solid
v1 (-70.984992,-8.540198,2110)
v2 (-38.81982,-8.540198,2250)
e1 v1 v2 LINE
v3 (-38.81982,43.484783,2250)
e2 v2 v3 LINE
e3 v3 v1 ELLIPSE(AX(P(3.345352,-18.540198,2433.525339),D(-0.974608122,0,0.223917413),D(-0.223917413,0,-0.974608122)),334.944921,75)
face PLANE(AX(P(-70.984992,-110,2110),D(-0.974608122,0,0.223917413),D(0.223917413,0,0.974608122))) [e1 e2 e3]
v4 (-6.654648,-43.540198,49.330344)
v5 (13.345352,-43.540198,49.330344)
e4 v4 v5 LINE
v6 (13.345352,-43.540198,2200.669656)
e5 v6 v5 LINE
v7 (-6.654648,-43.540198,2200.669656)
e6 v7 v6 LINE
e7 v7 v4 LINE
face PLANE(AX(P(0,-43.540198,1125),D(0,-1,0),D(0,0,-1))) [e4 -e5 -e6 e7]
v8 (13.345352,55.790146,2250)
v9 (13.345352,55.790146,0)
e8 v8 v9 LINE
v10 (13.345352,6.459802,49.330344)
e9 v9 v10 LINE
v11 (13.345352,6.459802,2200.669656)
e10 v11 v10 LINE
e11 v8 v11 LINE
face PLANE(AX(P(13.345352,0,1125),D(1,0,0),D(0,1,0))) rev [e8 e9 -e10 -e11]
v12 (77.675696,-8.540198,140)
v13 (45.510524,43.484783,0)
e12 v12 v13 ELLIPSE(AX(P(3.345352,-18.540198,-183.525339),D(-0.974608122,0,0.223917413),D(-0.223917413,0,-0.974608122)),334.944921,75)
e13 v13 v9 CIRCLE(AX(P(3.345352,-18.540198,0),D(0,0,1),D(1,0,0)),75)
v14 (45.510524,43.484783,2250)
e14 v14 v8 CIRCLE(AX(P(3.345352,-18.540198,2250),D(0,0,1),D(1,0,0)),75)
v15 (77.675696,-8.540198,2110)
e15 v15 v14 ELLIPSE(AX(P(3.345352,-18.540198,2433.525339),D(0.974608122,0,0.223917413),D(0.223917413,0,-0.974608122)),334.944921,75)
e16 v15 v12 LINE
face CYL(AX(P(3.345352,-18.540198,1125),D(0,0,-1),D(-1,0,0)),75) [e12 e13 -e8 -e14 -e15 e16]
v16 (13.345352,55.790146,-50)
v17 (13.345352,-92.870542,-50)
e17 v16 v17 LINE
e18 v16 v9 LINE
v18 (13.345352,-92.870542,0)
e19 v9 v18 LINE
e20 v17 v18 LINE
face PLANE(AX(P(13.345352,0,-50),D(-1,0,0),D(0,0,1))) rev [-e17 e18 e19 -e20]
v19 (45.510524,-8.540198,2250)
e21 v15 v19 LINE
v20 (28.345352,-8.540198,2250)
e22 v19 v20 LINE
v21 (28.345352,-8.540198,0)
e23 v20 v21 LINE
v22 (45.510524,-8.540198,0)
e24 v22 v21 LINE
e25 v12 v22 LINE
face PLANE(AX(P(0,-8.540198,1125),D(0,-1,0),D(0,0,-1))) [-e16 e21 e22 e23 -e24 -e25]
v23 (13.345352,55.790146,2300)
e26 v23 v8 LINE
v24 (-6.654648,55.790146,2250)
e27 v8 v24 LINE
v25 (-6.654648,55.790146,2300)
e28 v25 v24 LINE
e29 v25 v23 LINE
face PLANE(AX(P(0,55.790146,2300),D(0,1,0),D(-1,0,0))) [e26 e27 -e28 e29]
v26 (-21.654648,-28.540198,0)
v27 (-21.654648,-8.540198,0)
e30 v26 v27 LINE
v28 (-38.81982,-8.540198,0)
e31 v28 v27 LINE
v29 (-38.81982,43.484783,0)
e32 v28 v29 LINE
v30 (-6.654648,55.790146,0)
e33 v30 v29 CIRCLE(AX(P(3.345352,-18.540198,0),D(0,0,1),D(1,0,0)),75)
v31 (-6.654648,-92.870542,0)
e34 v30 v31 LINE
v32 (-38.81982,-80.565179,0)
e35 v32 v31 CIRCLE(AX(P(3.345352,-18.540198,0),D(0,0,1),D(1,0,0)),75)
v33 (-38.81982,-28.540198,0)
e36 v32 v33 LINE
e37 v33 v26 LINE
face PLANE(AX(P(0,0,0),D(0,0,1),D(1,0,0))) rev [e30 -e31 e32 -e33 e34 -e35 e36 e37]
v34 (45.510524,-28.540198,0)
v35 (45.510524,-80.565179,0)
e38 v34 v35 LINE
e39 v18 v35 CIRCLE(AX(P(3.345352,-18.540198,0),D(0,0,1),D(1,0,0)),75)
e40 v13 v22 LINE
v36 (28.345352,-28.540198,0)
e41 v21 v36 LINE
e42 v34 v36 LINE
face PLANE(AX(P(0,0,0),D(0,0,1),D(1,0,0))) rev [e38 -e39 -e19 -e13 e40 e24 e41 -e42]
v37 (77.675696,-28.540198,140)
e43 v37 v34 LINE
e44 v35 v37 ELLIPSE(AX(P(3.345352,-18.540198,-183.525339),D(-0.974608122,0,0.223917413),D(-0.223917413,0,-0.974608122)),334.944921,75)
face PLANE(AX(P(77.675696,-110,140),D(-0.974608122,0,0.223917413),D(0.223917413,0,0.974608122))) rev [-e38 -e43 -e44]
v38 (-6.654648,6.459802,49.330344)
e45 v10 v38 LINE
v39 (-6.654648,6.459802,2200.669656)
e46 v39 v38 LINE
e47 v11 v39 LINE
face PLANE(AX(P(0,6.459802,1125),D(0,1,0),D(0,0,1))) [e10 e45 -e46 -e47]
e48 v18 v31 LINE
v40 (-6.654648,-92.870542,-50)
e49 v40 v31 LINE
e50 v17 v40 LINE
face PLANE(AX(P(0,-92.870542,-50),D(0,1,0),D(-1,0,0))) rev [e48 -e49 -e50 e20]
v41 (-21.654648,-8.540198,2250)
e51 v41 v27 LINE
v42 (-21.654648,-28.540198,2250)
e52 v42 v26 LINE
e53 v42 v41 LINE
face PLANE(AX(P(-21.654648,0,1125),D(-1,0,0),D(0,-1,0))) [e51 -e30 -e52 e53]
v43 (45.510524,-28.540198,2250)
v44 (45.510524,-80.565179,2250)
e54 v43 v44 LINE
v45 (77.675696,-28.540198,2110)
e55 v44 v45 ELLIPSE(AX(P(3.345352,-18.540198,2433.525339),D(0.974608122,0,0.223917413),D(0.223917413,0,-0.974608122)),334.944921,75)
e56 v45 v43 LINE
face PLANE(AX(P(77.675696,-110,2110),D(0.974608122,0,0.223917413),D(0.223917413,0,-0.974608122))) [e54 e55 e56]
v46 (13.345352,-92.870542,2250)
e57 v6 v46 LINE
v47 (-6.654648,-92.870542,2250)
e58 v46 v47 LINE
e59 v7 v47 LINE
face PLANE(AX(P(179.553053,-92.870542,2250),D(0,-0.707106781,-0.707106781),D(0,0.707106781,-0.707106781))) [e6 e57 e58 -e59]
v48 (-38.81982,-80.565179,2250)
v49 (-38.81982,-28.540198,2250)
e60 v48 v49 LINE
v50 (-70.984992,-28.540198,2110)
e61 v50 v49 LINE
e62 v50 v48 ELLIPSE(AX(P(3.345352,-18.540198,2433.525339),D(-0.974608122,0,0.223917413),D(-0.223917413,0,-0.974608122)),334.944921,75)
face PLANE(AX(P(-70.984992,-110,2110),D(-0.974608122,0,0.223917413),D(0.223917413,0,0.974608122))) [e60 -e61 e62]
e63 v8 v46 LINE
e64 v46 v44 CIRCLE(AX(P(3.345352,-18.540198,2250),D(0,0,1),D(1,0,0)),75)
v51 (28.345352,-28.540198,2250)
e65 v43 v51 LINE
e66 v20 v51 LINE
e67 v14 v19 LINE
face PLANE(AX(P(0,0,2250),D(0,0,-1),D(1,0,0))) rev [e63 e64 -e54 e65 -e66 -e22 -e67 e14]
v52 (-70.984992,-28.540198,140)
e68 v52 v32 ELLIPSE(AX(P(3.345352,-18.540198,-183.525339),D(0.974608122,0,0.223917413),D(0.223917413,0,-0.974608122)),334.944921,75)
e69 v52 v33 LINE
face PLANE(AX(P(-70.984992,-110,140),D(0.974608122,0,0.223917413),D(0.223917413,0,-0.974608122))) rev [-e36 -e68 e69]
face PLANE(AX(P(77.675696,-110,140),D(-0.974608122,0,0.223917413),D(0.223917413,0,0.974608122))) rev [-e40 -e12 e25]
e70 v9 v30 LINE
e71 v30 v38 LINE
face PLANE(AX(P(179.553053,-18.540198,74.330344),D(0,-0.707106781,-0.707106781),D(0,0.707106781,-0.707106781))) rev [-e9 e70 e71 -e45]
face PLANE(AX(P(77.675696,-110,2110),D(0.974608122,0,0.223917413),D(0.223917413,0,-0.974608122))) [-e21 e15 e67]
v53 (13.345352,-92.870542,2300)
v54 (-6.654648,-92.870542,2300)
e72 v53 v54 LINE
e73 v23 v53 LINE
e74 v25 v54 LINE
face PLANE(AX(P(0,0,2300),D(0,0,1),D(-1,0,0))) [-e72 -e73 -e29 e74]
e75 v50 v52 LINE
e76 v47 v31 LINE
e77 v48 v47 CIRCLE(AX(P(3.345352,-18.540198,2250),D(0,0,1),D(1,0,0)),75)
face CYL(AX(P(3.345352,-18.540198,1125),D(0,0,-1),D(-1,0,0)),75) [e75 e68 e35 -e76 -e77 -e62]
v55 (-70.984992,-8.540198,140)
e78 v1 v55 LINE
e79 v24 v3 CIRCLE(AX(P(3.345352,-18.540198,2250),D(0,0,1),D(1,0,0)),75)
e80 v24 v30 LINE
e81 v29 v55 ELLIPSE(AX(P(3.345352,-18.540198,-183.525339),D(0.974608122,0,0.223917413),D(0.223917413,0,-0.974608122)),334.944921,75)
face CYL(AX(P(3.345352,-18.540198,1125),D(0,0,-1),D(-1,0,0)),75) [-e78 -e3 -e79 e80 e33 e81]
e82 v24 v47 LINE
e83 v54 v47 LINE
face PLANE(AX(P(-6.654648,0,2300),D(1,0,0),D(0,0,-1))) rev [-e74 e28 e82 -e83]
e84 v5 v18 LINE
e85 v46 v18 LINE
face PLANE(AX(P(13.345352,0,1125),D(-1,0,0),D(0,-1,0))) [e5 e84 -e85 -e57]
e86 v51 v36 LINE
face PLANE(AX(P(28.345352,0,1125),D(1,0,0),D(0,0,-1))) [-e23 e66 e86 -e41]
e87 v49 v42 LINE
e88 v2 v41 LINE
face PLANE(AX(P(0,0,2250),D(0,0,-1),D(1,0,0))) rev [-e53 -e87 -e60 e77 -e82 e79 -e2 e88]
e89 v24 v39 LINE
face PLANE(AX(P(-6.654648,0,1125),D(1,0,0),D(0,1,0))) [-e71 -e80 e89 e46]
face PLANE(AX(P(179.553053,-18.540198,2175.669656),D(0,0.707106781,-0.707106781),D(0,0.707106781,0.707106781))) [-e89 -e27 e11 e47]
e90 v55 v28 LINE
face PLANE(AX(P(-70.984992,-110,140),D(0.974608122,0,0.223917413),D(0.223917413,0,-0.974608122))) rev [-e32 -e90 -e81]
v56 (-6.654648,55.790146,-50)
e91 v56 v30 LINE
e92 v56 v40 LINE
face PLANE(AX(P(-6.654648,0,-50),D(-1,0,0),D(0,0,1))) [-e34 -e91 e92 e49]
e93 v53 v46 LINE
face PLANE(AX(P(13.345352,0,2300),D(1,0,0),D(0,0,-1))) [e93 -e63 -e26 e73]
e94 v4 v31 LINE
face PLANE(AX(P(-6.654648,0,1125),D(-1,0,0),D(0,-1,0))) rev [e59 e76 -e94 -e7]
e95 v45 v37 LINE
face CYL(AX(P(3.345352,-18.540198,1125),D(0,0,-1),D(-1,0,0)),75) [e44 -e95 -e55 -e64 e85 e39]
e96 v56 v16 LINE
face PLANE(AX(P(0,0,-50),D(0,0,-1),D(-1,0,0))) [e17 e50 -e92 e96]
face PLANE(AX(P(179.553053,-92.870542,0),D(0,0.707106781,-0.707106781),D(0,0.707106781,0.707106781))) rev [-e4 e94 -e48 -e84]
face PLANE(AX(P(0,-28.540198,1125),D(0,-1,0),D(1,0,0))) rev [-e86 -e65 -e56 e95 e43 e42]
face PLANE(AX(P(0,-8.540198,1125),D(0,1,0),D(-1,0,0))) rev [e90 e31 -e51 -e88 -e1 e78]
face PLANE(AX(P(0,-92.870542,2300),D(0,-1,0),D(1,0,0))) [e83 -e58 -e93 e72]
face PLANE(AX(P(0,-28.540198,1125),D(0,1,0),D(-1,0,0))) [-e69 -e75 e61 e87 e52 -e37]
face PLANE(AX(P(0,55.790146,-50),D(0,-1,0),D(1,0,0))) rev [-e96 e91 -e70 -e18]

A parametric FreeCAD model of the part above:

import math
import FreeCAD as App
import Part
import Sketcher

V = App.Vector
Q = App.Units.Quantity


def add_polygon(sketch, points):
    """Adds a closed chain of lines whose ends are joined by coincident constraints."""
    first, n = sketch.GeometryCount, len(points)
    for a, b in zip(points, points[1:] + points[:1]):
        sketch.addGeometry(Part.LineSegment(App.Vector(*a, 0), App.Vector(*b, 0)), False)
    for i in range(n):
        sketch.addConstraint(Sketcher.Constraint("Coincident", first + i, 2, first + (i + 1) % n, 1))

doc = App.newDocument("Part")
body = doc.addObject("PartDesign::Body", "Body")

sketch1 = doc.addObject("Sketcher::SketchObject", "Sketch")
body.addObject(sketch1)
sketch1.AttachmentSupport = (doc.XY_Plane, [""])
sketch1.MapMode = "FlatFace"
sketch1.addGeometry([
    Part.LineSegment(V(28, -9, 0), V(78, -9, 0)),
    Part.ArcOfCircle(Part.Circle(V(3, -19, 0), V(0, 0, 1), 75), math.radians(8), math.radians(82)),
    Part.LineSegment(V(13, 56, 0), V(13, 6, 0)),
    Part.LineSegment(V(13, 6, 0), V(-7, 6, 0)),
    Part.LineSegment(V(-7, 6, 0), V(-7, 56, 0)),
    Part.ArcOfCircle(Part.Circle(V(3, -19, 0), V(0, 0, 1), 75), math.radians(98), math.radians(172)),
    Part.LineSegment(V(-71, -9, 0), V(-22, -9, 0)),
    Part.LineSegment(V(-22, -9, 0), V(-22, -29, 0)),
    Part.LineSegment(V(-22, -29, 0), V(-71, -29, 0)),
    Part.ArcOfCircle(Part.Circle(V(3, -19, 0), V(0, 0, 1), 75), math.radians(-172), math.radians(-98)),
    Part.LineSegment(V(-7, -93, 0), V(-7, -44, 0)),
    Part.LineSegment(V(-7, -44, 0), V(13, -44, 0)),
    Part.LineSegment(V(13, -44, 0), V(13, -93, 0)),
    Part.ArcOfCircle(Part.Circle(V(3, -19, 0), V(0, 0, 1), 75), math.radians(-82), math.radians(-8)),
    Part.LineSegment(V(78, -29, 0), V(28, -29, 0)),
    Part.LineSegment(V(28, -29, 0), V(28, -9, 0)),
], False)
sketch1.addConstraint([
    Sketcher.Constraint("Coincident", 0, 2, 1, 1),
    Sketcher.Constraint("Coincident", 1, 2, 2, 1),
    Sketcher.Constraint("Coincident", 2, 2, 3, 1),
    Sketcher.Constraint("Coincident", 3, 2, 4, 1),
    Sketcher.Constraint("Coincident", 4, 2, 5, 1),
    Sketcher.Constraint("Coincident", 5, 2, 6, 1),
    Sketcher.Constraint("Coincident", 6, 2, 7, 1),
    Sketcher.Constraint("Coincident", 7, 2, 8, 1),
    Sketcher.Constraint("Coincident", 8, 2, 9, 1),
    Sketcher.Constraint("Coincident", 9, 2, 10, 1),
    Sketcher.Constraint("Coincident", 10, 2, 11, 1),
    Sketcher.Constraint("Coincident", 11, 2, 12, 1),
    Sketcher.Constraint("Coincident", 12, 2, 13, 1),
    Sketcher.Constraint("Coincident", 13, 2, 14, 1),
    Sketcher.Constraint("Coincident", 14, 2, 15, 1),
    Sketcher.Constraint("Coincident", 15, 2, 0, 1),
    Sketcher.Constraint("Horizontal", 0),
    Sketcher.Constraint("Vertical", 2),
    Sketcher.Constraint("Horizontal", 3),
    Sketcher.Constraint("Vertical", 4),
    Sketcher.Constraint("Horizontal", 6),
    Sketcher.Constraint("Vertical", 7),
    Sketcher.Constraint("Horizontal", 8),
    Sketcher.Constraint("Vertical", 10),
    Sketcher.Constraint("Horizontal", 11),
    Sketcher.Constraint("Vertical", 12),
    Sketcher.Constraint("Horizontal", 14),
    Sketcher.Constraint("Vertical", 15),
    Sketcher.Constraint("Coincident", 5, 3, 1, 3),
    Sketcher.Constraint("Coincident", 9, 3, 1, 3),
    Sketcher.Constraint("Coincident", 13, 3, 1, 3),
    Sketcher.Constraint("Equal", 1, 5),
    Sketcher.Constraint("Equal", 5, 9),
    Sketcher.Constraint("Equal", 9, 13),
    Sketcher.Constraint("Horizontal", 1, 2, 4, 2),
    Sketcher.Constraint("Horizontal", 0, 2, 5, 2),
    Sketcher.Constraint("Horizontal", 9, 2, 12, 2),
    Sketcher.Constraint("Horizontal", 8, 2, 13, 2),
    Sketcher.Constraint("Vertical", 5, 2, 8, 2),
    Sketcher.Constraint("Vertical", 4, 2, 9, 2),
    Sketcher.Constraint("Equal", 0, 6),
    Sketcher.Constraint("Equal", 14, 2),
    Sketcher.Constraint("Equal", 11, 7),
    Sketcher.Constraint("Equal", 4, 10),
    Sketcher.Constraint("Radius", 1, Q("75 mm")),
    Sketcher.Constraint("DistanceX", 3, 2, 3, 1, Q("20 mm")),
    Sketcher.Constraint("DistanceY", 13, 3, 2, 2, Q("25 mm")),
    Sketcher.Constraint("DistanceY", 1, 3, -1, 1, Q("18.540198 mm")),
    Sketcher.Constraint("DistanceX", -1, 1, 1, 3, Q("3.345352 mm")),
])
pad1 = doc.addObject("PartDesign::Pad", "Pad")
body.addObject(pad1)
pad1.Profile = sketch1
pad1.Length = 1125

sketch2 = doc.addObject("Sketcher::SketchObject", "Sketch001")
body.addObject(sketch2)
sketch2.AttachmentSupport = (doc.XZ_Plane, [""])
sketch2.MapMode = "FlatFace"
add_polygon(sketch2, [(-71, 140), (-39, 0), (-71, 0)])
add_polygon(sketch2, [(78, 0), (46, 0), (78, 140)])
sketch2.addConstraint([
    Sketcher.Constraint("Horizontal", 1),
    Sketcher.Constraint("Vertical", 2),
    Sketcher.Constraint("Horizontal", 3),
    Sketcher.Constraint("Vertical", 5),
    Sketcher.Constraint("PointOnObject", 0, 2, -1),
    Sketcher.Constraint("PointOnObject", 3, 2, -1),
    Sketcher.Constraint("Horizontal", 2, 2, 4, 2),
    Sketcher.Constraint("Equal", 1, 3),
    Sketcher.Constraint("DistanceY", 2, 1, 2, 2, Q("140 mm")),
    Sketcher.Constraint("DistanceX", 1, 2, 1, 1, Q("32.165172 mm")),
    Sketcher.Constraint("DistanceX", 0, 2, -1, 1, Q("38.81982 mm")),
    Sketcher.Constraint("DistanceX", -1, 1, 3, 2, Q("45.510524 mm")),
])
pocket1 = doc.addObject("PartDesign::Pocket", "Pocket")
body.addObject(pocket1)
pocket1.Profile = sketch2
pocket1.Length = 220
pocket1.Midplane = True

sketch3 = doc.addObject("Sketcher::SketchObject", "Sketch002")
body.addObject(sketch3)
sketch3.AttachmentSupport = (doc.YZ_Plane, [""])
sketch3.MapMode = "FlatFace"
sketch3.AttachmentOffset = App.Placement(V(0, 0, -6.654648), App.Rotation())
add_polygon(sketch3, [(-93, 0), (56, 0), (-19, 74)])
sketch3.addConstraint([
    Sketcher.Constraint("Horizontal", 0),
    Sketcher.Constraint("PointOnObject", 0, 2, -1),
    Sketcher.Constraint("Perpendicular", 1, 2),
    Sketcher.Constraint("Equal", 1, 2),
    Sketcher.Constraint("DistanceX", 1, 2, -1, 1, Q("18.540198 mm")),
    Sketcher.Constraint("Distance", 1, Q("105.11898 mm")),
])
pad2 = doc.addObject("PartDesign::Pad", "Pad001")
body.addObject(pad2)
pad2.Profile = sketch3
pad2.Length = 20

sketch4 = doc.addObject("Sketcher::SketchObject", "Sketch003")
body.addObject(sketch4)
sketch4.AttachmentSupport = (doc.XY_Plane, [""])
sketch4.MapMode = "FlatFace"
add_polygon(sketch4, [(13, -93), (-7, -93), (-7, 56), (13, 56)])
sketch4.addConstraint([
    Sketcher.Constraint("Horizontal", 0),
    Sketcher.Constraint("Vertical", 1),
    Sketcher.Constraint("Horizontal", 2),
    Sketcher.Constraint("Vertical", 3),
    Sketcher.Constraint("DistanceX", 0, 2, 0, 1, Q("20 mm")),
    Sketcher.Constraint("DistanceY", 1, 1, 1, 2, Q("148.660687 mm")),
    Sketcher.Constraint("DistanceX", 0, 2, -1, 1, Q("6.654648 mm")),
    Sketcher.Constraint("DistanceY", 0, 2, -1, 1, Q("92.870542 mm")),
])
pad3 = doc.addObject("PartDesign::Pad", "Pad002")
body.addObject(pad3)
pad3.Profile = sketch4
pad3.Length = 50
pad3.Reversed = True
doc.recompute()

datumplane = doc.addObject("PartDesign::Plane", "DatumPlane")
body.addObject(datumplane)
datumplane.AttachmentSupport = (doc.XY_Plane, [""])
datumplane.MapMode = "FlatFace"
datumplane.AttachmentOffset = App.Placement(V(0, 0, 1125), App.Rotation())
mirrored = doc.addObject("PartDesign::Mirrored", "Mirrored")
body.addObject(mirrored)
mirrored.Originals = [pad1, pocket1, pad2, pad3]
mirrored.MirrorPlane = (datumplane, [""])
body.Tip = mirrored

doc.recompute()
